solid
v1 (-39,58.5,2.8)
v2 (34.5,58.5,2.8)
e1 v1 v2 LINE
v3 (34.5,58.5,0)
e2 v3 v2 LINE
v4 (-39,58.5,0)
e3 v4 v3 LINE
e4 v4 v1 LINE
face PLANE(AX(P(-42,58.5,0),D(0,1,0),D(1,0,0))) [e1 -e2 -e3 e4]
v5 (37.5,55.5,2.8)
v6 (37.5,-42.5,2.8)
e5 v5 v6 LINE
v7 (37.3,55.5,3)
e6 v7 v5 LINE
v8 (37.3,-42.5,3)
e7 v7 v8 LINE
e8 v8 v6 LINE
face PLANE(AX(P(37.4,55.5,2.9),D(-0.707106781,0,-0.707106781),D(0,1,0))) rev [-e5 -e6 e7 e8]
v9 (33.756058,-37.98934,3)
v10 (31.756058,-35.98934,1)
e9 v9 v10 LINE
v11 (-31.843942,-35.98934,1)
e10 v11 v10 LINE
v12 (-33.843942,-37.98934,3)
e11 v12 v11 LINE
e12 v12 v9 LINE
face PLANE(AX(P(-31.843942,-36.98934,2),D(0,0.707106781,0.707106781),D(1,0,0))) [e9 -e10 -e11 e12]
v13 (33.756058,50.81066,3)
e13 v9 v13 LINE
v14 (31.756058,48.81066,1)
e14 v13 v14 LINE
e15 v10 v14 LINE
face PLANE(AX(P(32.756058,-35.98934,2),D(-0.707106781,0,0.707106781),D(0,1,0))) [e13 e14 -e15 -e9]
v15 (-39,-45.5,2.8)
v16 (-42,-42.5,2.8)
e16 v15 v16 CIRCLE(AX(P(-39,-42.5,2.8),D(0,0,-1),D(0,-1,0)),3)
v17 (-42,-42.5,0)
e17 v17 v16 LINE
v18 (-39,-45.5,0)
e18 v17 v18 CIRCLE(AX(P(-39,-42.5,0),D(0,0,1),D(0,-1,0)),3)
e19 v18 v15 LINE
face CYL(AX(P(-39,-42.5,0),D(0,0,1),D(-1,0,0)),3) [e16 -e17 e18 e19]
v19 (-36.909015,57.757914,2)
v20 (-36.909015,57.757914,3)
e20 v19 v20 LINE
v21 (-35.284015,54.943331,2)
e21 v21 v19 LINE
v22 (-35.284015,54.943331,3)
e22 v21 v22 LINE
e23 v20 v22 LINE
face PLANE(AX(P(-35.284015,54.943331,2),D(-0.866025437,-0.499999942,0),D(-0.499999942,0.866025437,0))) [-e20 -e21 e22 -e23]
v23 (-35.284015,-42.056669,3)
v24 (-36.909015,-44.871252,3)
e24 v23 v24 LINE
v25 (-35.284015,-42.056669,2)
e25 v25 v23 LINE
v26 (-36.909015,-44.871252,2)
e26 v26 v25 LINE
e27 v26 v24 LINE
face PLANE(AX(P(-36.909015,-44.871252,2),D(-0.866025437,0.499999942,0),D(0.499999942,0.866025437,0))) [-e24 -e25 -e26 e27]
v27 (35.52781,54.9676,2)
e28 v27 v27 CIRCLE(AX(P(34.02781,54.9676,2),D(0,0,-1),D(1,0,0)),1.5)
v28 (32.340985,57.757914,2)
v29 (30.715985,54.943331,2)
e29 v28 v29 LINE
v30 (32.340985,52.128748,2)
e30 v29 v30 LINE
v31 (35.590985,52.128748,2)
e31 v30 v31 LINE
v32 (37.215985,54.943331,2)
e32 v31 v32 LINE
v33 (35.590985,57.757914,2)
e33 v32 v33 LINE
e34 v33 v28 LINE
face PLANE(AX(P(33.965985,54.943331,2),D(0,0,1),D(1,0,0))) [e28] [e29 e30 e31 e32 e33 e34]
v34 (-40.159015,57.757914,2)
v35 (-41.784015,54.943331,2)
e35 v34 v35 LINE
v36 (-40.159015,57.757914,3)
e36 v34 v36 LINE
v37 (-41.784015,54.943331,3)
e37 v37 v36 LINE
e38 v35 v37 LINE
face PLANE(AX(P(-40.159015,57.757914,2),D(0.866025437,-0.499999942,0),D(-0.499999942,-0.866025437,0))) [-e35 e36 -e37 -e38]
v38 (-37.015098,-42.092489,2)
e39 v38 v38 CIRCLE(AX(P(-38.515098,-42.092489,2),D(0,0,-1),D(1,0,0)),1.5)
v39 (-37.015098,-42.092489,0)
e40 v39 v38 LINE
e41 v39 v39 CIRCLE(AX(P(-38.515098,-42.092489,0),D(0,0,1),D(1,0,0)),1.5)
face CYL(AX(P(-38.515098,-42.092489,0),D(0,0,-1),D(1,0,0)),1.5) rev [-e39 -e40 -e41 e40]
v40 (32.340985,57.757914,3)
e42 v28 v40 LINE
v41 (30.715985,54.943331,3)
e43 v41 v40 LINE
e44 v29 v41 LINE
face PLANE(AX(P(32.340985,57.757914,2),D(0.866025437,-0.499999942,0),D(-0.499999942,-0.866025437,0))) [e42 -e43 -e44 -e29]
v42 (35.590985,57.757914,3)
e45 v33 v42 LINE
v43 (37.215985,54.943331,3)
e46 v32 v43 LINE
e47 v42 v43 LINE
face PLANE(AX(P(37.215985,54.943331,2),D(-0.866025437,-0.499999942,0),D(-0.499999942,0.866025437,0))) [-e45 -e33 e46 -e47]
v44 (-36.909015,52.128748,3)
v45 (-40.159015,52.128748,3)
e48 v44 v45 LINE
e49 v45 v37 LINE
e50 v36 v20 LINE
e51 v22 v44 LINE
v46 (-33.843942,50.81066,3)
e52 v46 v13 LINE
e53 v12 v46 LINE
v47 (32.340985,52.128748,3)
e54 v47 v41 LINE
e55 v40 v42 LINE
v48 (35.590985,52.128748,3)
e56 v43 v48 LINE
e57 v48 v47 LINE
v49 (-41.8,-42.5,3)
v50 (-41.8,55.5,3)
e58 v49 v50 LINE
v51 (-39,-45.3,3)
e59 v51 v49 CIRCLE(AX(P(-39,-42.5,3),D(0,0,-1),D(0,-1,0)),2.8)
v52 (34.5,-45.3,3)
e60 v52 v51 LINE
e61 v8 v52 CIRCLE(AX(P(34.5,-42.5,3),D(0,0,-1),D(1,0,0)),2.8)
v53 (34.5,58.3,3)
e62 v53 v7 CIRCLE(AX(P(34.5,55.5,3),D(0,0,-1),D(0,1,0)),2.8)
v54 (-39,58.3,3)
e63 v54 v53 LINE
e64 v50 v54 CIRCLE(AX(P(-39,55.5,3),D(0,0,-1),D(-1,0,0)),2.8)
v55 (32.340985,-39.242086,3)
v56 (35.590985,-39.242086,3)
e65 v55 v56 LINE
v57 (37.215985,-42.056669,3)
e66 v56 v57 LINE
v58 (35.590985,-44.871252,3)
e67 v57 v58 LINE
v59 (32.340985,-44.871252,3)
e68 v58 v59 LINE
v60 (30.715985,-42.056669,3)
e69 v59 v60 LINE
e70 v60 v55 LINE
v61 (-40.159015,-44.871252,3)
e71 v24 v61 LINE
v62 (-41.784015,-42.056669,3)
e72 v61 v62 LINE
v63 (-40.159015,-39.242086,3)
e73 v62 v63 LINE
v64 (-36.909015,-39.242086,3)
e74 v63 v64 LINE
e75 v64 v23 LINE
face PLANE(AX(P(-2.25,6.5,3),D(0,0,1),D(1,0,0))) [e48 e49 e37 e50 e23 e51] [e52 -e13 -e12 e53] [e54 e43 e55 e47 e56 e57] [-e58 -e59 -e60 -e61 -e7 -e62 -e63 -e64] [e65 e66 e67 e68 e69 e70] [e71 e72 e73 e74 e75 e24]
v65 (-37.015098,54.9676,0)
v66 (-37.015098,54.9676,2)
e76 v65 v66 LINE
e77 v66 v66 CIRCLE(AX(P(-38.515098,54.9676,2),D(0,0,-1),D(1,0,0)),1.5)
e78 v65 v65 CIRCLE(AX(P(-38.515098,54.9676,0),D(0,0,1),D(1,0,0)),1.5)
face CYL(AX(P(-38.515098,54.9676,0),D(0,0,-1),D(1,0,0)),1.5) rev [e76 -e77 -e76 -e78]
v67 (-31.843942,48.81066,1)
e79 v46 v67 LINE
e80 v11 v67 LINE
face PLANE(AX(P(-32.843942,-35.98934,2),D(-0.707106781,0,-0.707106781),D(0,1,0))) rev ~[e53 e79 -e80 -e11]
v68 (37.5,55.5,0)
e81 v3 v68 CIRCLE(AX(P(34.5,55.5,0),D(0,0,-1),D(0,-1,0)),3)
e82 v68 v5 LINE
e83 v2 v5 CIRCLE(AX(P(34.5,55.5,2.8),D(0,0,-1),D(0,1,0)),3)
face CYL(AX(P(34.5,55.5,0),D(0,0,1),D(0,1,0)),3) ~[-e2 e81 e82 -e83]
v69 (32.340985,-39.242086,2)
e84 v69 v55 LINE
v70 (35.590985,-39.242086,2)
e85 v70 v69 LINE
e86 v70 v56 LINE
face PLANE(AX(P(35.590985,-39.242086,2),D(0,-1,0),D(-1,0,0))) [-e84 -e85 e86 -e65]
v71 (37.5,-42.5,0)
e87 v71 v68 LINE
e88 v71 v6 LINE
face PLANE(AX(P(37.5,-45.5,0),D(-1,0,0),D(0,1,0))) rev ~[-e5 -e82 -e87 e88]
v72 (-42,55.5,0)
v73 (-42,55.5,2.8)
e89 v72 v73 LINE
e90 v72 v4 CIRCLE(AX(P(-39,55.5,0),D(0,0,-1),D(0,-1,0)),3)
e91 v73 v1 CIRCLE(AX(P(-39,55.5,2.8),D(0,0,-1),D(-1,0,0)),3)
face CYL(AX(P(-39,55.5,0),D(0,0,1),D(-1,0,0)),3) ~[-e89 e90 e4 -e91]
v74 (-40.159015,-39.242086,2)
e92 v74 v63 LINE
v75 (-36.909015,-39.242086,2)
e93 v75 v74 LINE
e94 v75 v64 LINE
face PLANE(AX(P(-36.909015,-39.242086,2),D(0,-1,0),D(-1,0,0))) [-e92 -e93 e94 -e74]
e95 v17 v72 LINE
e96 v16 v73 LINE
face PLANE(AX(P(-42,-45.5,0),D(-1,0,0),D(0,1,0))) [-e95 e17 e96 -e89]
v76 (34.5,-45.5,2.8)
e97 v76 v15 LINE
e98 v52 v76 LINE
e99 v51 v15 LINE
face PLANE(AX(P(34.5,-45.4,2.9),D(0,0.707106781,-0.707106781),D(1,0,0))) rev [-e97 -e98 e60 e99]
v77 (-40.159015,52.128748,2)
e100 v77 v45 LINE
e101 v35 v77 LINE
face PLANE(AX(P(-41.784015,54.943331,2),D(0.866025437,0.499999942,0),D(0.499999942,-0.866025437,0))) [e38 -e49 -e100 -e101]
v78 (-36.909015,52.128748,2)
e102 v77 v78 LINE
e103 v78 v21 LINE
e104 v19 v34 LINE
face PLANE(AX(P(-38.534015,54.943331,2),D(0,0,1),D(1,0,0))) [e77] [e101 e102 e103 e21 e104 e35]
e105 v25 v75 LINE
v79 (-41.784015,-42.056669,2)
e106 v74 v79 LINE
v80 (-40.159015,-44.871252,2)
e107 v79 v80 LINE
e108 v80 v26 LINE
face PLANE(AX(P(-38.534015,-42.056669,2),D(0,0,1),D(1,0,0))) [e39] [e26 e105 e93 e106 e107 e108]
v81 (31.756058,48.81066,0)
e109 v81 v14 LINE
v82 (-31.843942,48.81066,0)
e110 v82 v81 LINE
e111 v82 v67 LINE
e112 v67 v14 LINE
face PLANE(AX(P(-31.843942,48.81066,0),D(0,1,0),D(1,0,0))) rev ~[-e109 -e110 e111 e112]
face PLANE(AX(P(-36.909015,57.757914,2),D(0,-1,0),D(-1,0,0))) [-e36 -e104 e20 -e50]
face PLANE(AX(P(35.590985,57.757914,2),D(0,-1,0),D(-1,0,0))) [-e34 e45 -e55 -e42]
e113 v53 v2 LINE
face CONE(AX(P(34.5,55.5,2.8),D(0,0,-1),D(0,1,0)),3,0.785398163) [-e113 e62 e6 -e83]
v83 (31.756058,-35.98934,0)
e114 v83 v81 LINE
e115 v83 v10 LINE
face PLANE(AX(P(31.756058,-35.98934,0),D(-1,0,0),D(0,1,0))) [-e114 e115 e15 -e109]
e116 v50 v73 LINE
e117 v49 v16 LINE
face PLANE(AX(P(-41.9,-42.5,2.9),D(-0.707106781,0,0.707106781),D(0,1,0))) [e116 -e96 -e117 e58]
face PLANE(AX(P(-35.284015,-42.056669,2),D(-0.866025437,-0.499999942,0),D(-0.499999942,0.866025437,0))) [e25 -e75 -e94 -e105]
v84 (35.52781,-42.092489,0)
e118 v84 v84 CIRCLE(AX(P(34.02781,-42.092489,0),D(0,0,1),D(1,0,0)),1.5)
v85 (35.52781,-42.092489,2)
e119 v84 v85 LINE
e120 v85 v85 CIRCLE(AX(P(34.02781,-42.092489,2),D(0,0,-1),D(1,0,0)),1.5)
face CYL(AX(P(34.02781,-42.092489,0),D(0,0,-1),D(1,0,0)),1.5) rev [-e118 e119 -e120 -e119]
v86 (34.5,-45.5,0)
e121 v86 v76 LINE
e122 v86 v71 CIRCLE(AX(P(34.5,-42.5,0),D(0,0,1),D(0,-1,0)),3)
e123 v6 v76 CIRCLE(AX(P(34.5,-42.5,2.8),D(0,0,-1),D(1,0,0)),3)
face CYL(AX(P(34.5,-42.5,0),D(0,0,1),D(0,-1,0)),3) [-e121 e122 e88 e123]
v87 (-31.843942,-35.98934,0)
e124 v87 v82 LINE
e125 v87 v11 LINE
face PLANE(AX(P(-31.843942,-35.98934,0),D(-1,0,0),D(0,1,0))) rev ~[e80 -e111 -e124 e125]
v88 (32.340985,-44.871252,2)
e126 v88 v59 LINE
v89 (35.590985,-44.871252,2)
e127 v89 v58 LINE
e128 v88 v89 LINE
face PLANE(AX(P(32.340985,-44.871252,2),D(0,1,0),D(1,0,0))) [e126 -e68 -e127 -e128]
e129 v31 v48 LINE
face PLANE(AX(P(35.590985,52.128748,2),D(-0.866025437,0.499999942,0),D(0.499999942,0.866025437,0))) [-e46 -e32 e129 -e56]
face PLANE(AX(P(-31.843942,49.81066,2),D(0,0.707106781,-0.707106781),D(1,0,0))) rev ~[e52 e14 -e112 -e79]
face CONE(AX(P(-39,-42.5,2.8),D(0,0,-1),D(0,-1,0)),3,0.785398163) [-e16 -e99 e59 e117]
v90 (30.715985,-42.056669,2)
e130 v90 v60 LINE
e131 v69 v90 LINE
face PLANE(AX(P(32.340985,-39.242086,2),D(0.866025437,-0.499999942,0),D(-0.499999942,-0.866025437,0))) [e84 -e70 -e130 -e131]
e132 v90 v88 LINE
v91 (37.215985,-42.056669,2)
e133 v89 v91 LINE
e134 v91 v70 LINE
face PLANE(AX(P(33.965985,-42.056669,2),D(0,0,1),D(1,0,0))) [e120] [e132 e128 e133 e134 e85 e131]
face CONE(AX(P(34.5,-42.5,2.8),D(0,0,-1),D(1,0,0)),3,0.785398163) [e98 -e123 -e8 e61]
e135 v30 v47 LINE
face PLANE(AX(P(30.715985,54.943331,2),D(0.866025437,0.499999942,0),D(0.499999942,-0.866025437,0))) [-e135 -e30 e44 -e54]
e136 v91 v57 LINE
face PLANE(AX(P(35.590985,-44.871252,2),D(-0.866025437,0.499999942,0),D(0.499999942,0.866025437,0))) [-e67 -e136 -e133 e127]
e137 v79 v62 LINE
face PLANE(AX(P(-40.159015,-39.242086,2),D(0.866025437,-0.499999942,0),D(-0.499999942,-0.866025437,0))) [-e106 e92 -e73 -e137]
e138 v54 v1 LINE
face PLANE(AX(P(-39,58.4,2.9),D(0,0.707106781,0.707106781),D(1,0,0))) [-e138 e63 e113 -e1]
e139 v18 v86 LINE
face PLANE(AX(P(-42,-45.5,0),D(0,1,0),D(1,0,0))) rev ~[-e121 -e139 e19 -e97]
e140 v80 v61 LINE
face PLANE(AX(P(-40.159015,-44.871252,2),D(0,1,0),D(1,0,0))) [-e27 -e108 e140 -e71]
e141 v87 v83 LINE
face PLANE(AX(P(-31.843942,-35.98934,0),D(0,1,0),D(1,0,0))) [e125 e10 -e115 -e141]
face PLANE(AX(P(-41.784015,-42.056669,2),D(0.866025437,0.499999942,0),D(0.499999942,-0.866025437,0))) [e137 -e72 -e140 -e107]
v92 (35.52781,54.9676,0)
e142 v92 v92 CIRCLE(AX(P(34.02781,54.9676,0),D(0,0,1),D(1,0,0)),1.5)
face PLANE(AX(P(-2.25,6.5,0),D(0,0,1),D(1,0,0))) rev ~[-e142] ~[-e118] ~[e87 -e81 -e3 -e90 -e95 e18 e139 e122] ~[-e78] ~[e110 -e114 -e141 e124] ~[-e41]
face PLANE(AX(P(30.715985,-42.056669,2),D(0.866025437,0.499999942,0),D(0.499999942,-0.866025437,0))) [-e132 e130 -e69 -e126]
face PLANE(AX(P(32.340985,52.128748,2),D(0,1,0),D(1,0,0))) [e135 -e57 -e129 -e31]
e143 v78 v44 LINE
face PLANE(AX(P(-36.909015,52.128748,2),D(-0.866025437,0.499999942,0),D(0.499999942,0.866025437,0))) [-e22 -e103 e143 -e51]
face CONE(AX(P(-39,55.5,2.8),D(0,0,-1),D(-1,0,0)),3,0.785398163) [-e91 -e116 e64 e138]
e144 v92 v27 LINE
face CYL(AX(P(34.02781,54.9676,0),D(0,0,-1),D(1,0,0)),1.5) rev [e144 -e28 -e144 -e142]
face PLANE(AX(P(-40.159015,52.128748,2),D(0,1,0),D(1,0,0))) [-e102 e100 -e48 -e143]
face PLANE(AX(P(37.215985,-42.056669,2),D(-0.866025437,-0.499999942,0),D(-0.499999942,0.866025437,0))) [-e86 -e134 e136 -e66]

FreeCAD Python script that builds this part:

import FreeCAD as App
import Part
import Sketcher

V = App.Vector
Q = App.Units.Quantity


def edges_at(feature, points):
    """Names of the edges that pass closest to the given points."""
    edges = feature.Shape.Edges
    near = lambda p: min(range(len(edges)), key=lambda i: edges[i].distToShape(Part.Vertex(*p))[0])
    return sorted({f"Edge{near(p) + 1}" for p in points})


def add_polygon(sketch, points):
    """Adds a closed chain of lines whose ends are joined by coincident constraints."""
    first, n = sketch.GeometryCount, len(points)
    for a, b in zip(points, points[1:] + points[:1]):
        sketch.addGeometry(Part.LineSegment(App.Vector(*a, 0), App.Vector(*b, 0)), False)
    for i in range(n):
        sketch.addConstraint(Sketcher.Constraint("Coincident", first + i, 2, first + (i + 1) % n, 1))

doc = App.newDocument("Part")
params = doc.addObject("Spreadsheet::Sheet", "Params")
for row, (alias, value) in enumerate([
    ("sketch1_height", "104 mm"),
    ("sketch1_width", "79.5 mm"),
    ("sketch1_width2", "63.6 mm"),
    ("sketch1_height2", "84.8 mm"),
    ("pad1_length", "3 mm"),
    ("sketch2_width", "3.25 mm"),
    ("pocket1_length", "2 mm"),
    ("sketch3_width", "3.25 mm"),
    ("pocket2_length", "2 mm"),
    ("sketch4_width", "3.25 mm"),
    ("pocket3_length", "2 mm"),
    ("sketch5_width", "3.25 mm"),
    ("pocket4_length", "2 mm"),
    ("sketch6_diameter", "3 mm"),
    ("fillet_radius", "3 mm"),
    ("chamfer_size", "2 mm"),
    ("chamfer2_size", "0.2 mm"),
], start=1):
    params.set(f"A{row}", alias)
    params.set(f"B{row}", "=" + value)
    params.setAlias(f"B{row}", alias)

body = doc.addObject("PartDesign::Body", "Body")

# Sketch on XY plane
sketch1 = doc.addObject("Sketcher::SketchObject", "Sketch")
body.addObject(sketch1)
sketch1.AttachmentSupport = (doc.XY_Plane, [""])
sketch1.MapMode = "FlatFace"
add_polygon(sketch1, [(-42, 58.5), (-42, -45.5), (37.5, -45.5), (37.5, 58.5)])  # lines 0-3
add_polygon(sketch1, [(31.756058, -35.98934), (-31.843942, -35.98934), (-31.843942, 48.81066), (31.756058, 48.81066)])  # lines 4-7
sketch1.addConstraint([
    Sketcher.Constraint("Vertical", 0),
    Sketcher.Constraint("Horizontal", 1),
    Sketcher.Constraint("Vertical", 2),
    Sketcher.Constraint("Horizontal", 3),
    Sketcher.Constraint("Horizontal", 4),
    Sketcher.Constraint("Vertical", 5),
    Sketcher.Constraint("Horizontal", 6),
    Sketcher.Constraint("Vertical", 7),
    Sketcher.Constraint("DistanceY", 0, 2, 0, 1, 104.0),
    Sketcher.Constraint("DistanceX", 1, 1, 1, 2, 79.5),
    Sketcher.Constraint("DistanceX", 4, 2, 4, 1, 63.6),
    Sketcher.Constraint("DistanceY", 5, 1, 5, 2, 84.8),
    Sketcher.Constraint("DistanceX", 0, 2, -1, 1, 42.0),
    Sketcher.Constraint("DistanceY", 0, 2, -1, 1, 45.5),
    Sketcher.Constraint("DistanceX", 4, 2, -1, 1, 31.843942),
    Sketcher.Constraint("DistanceY", 4, 2, -1, 1, 35.98934),
])
sketch1.setExpression("Constraints[16]", "Params.sketch1_height")
sketch1.setExpression("Constraints[17]", "Params.sketch1_width")
sketch1.setExpression("Constraints[18]", "Params.sketch1_width2")
sketch1.setExpression("Constraints[19]", "Params.sketch1_height2")
pad1 = doc.addObject("PartDesign::Pad", "Pad")
body.addObject(pad1)
pad1.Profile = sketch1
pad1.setExpression("Length", "Params.pad1_length")

# Sketch on XY plane
sketch2 = doc.addObject("Sketcher::SketchObject", "Sketch001")
body.addObject(sketch2)
sketch2.AttachmentSupport = (doc.XY_Plane, [""])
sketch2.MapMode = "FlatFace"
sketch2.AttachmentOffset = App.Placement(V(0, 0, 2), App.Rotation())
add_polygon(sketch2, [(-35.284015, 54.943331), (-36.909015, 57.757914), (-40.159015, 57.757914), (-41.784015, 54.943331), (-40.159015, 52.128748), (-36.909015, 52.128748)])  # lines 0-5
sketch2.addConstraint([
    Sketcher.Constraint("Horizontal", 1),
    Sketcher.Constraint("Horizontal", 4),
    Sketcher.Constraint("Parallel", 0, 3),
    Sketcher.Constraint("Parallel", 2, 5),
    Sketcher.Constraint("Horizontal", 2, 2, 5, 2),
    Sketcher.Constraint("Vertical", 1, 2, 3, 2),
    Sketcher.Constraint("Vertical", 0, 2, 4, 2),
    Sketcher.Constraint("Angle", 0, Q("119.999996 deg")),
    Sketcher.Constraint("DistanceX", 1, 2, 1, 1, 3.25),
    Sketcher.Constraint("DistanceX", 2, 2, 5, 2, 6.5),
    Sketcher.Constraint("DistanceY", -1, 1, 2, 2, 54.943331),
    Sketcher.Constraint("DistanceX", 0, 2, -1, 1, 36.909015),
])
sketch2.setExpression("Constraints[14]", "Params.sketch2_width")
pocket1 = doc.addObject("PartDesign::Pocket", "Pocket")
body.addObject(pocket1)
pocket1.Profile = sketch2
pocket1.setExpression("Length", "Params.pocket1_length")
pocket1.Reversed = True

# Sketch on XY plane
sketch3 = doc.addObject("Sketcher::SketchObject", "Sketch002")
body.addObject(sketch3)
sketch3.AttachmentSupport = (doc.XY_Plane, [""])
sketch3.MapMode = "FlatFace"
sketch3.AttachmentOffset = App.Placement(V(0, 0, 2), App.Rotation())
add_polygon(sketch3, [(30.715985, -42.056669), (32.340985, -44.871252), (35.590985, -44.871252), (37.215985, -42.056669), (35.590985, -39.242086), (32.340985, -39.242086)])  # lines 0-5
sketch3.addConstraint([
    Sketcher.Constraint("Horizontal", 1),
    Sketcher.Constraint("Horizontal", 4),
    Sketcher.Constraint("Parallel", 0, 3),
    Sketcher.Constraint("Parallel", 2, 5),
    Sketcher.Constraint("Horizontal", 2, 2, 5, 2),
    Sketcher.Constraint("Vertical", 1, 2, 3, 2),
    Sketcher.Constraint("Vertical", 0, 2, 4, 2),
    Sketcher.Constraint("Angle", 0, Q("-60.000004 deg")),
    Sketcher.Constraint("DistanceX", 1, 1, 1, 2, 3.25),
    Sketcher.Constraint("DistanceX", 5, 2, 2, 2, 6.5),
    Sketcher.Constraint("DistanceY", 0, 2, -1, 1, 44.871252),
    Sketcher.Constraint("DistanceX", -1, 1, 0, 2, 32.340985),
])
sketch3.setExpression("Constraints[14]", "Params.sketch3_width")
pocket2 = doc.addObject("PartDesign::Pocket", "Pocket001")
body.addObject(pocket2)
pocket2.Profile = sketch3
pocket2.setExpression("Length", "Params.pocket2_length")
pocket2.Reversed = True

# Sketch on XY plane
sketch4 = doc.addObject("Sketcher::SketchObject", "Sketch003")
body.addObject(sketch4)
sketch4.AttachmentSupport = (doc.XY_Plane, [""])
sketch4.MapMode = "FlatFace"
sketch4.AttachmentOffset = App.Placement(V(0, 0, 2), App.Rotation())
add_polygon(sketch4, [(32.340985, 52.128748), (35.590985, 52.128748), (37.215985, 54.943331), (35.590985, 57.757914), (32.340985, 57.757914), (30.715985, 54.943331)])  # lines 0-5
sketch4.addConstraint([
    Sketcher.Constraint("Horizontal", 0),
    Sketcher.Constraint("Horizontal", 3),
    Sketcher.Constraint("Parallel", 1, 4),
    Sketcher.Constraint("Parallel", 2, 5),
    Sketcher.Constraint("Horizontal", 1, 2, 4, 2),
    Sketcher.Constraint("Vertical", 0, 2, 2, 2),
    Sketcher.Constraint("Vertical", 3, 2, 5, 2),
    Sketcher.Constraint("Angle", 1, Q("60.000004 deg")),
    Sketcher.Constraint("DistanceX", 0, 1, 0, 2, 3.25),
    Sketcher.Constraint("DistanceX", 4, 2, 1, 2, 6.5),
    Sketcher.Constraint("DistanceY", -1, 1, 0, 2, 52.128748),
    Sketcher.Constraint("DistanceX", -1, 1, 0, 2, 35.590985),
])
sketch4.setExpression("Constraints[14]", "Params.sketch4_width")
pocket3 = doc.addObject("PartDesign::Pocket", "Pocket002")
body.addObject(pocket3)
pocket3.Profile = sketch4
pocket3.setExpression("Length", "Params.pocket3_length")
pocket3.Reversed = True

# Sketch on XY plane
sketch5 = doc.addObject("Sketcher::SketchObject", "Sketch004")
body.addObject(sketch5)
sketch5.AttachmentSupport = (doc.XY_Plane, [""])
sketch5.MapMode = "FlatFace"
sketch5.AttachmentOffset = App.Placement(V(0, 0, 2), App.Rotation())
add_polygon(sketch5, [(-35.284015, -42.056669), (-36.909015, -39.242086), (-40.159015, -39.242086), (-41.784015, -42.056669), (-40.159015, -44.871252), (-36.909015, -44.871252)])  # lines 0-5
sketch5.addConstraint([
    Sketcher.Constraint("Horizontal", 1),
    Sketcher.Constraint("Horizontal", 4),
    Sketcher.Constraint("Parallel", 0, 3),
    Sketcher.Constraint("Parallel", 2, 5),
    Sketcher.Constraint("Horizontal", 2, 2, 5, 2),
    Sketcher.Constraint("Vertical", 1, 2, 3, 2),
    Sketcher.Constraint("Vertical", 0, 2, 4, 2),
    Sketcher.Constraint("Angle", 0, Q("119.999996 deg")),
    Sketcher.Constraint("DistanceX", 1, 2, 1, 1, 3.25),
    Sketcher.Constraint("DistanceX", 2, 2, 5, 2, 6.5),
    Sketcher.Constraint("DistanceY", 2, 2, -1, 1, 42.056669),
    Sketcher.Constraint("DistanceX", 0, 2, -1, 1, 36.909015),
])
sketch5.setExpression("Constraints[14]", "Params.sketch5_width")
pocket4 = doc.addObject("PartDesign::Pocket", "Pocket003")
body.addObject(pocket4)
pocket4.Profile = sketch5
pocket4.setExpression("Length", "Params.pocket4_length")
pocket4.Reversed = True

# Sketch on XY plane
sketch6 = doc.addObject("Sketcher::SketchObject", "Sketch005")
body.addObject(sketch6)
sketch6.AttachmentSupport = (doc.XY_Plane, [""])
sketch6.MapMode = "FlatFace"
sketch6.addGeometry([
    Part.Circle(V(-38.515098, -42.092489, 0), V(0, 0, 1), 1.5),
    Part.Circle(V(34.02781, -42.092489, 0), V(0, 0, 1), 1.5),
    Part.Circle(V(34.02781, 54.9676, 0), V(0, 0, 1), 1.5),
    Part.Circle(V(-38.515098, 54.9676, 0), V(0, 0, 1), 1.5),
], False)
sketch6.addConstraint([
    Sketcher.Constraint("Equal", 0, 1),
    Sketcher.Constraint("Equal", 1, 2),
    Sketcher.Constraint("Equal", 2, 3),
    Sketcher.Constraint("Horizontal", 0, 3, 1, 3),
    Sketcher.Constraint("Horizontal", 2, 3, 3, 3),
    Sketcher.Constraint("Vertical", 1, 3, 2, 3),
    Sketcher.Constraint("Vertical", 0, 3, 3, 3),
    Sketcher.Constraint("Diameter", 0, 3.0),
    Sketcher.Constraint("DistanceX", 0, 3, -1, 1, 38.515098),
    Sketcher.Constraint("DistanceY", -1, 1, 2, 3, 54.9676),
    Sketcher.Constraint("DistanceY", 0, 3, -1, 1, 42.092489),
    Sketcher.Constraint("DistanceX", -1, 1, 1, 3, 34.02781),
])
sketch6.setExpression("Constraints[7]", "Params.sketch6_diameter")
pocket5 = doc.addObject("PartDesign::Pocket", "Pocket004")
body.addObject(pocket5)
pocket5.Profile = sketch6
pocket5.Type = "ThroughAll"
pocket5.Midplane = True
doc.recompute()

fillet = doc.addObject("PartDesign::Fillet", "Fillet")
body.addObject(fillet)
fillet.Base = (pocket5, edges_at(pocket5, [
    (-42, 58.5, 1.5),
    (-42, -45.5, 1.5),
    (37.5, -45.5, 1.5),
    (37.5, 58.5, 1.5),
]))
fillet.setExpression("Radius", "Params.fillet_radius")
doc.recompute()

chamfer = doc.addObject("PartDesign::Chamfer", "Chamfer")
body.addObject(chamfer)
chamfer.Base = (fillet, edges_at(fillet, [
    (-0.044, -35.989, 3),
    (31.756, 6.411, 3),
    (-31.844, 6.411, 3),
    (-0.044, 48.811, 3),
]))
chamfer.setExpression("Size", "Params.chamfer_size")
doc.recompute()

chamfer2 = doc.addObject("PartDesign::Chamfer", "Chamfer001")
body.addObject(chamfer2)
chamfer2.Base = (chamfer, edges_at(chamfer, [
    (-42, 6.5, 3),
    (-2.25, 58.5, 3),
    (37.5, 6.5, 3),
    (-2.25, -45.5, 3),
    (-41.121, -44.621, 3),
    (36.621, 57.621, 3),
    (-41.121, 57.621, 3),
    (36.621, -44.621, 3),
]))
chamfer2.setExpression("Size", "Params.chamfer2_size")

doc.recompute()
